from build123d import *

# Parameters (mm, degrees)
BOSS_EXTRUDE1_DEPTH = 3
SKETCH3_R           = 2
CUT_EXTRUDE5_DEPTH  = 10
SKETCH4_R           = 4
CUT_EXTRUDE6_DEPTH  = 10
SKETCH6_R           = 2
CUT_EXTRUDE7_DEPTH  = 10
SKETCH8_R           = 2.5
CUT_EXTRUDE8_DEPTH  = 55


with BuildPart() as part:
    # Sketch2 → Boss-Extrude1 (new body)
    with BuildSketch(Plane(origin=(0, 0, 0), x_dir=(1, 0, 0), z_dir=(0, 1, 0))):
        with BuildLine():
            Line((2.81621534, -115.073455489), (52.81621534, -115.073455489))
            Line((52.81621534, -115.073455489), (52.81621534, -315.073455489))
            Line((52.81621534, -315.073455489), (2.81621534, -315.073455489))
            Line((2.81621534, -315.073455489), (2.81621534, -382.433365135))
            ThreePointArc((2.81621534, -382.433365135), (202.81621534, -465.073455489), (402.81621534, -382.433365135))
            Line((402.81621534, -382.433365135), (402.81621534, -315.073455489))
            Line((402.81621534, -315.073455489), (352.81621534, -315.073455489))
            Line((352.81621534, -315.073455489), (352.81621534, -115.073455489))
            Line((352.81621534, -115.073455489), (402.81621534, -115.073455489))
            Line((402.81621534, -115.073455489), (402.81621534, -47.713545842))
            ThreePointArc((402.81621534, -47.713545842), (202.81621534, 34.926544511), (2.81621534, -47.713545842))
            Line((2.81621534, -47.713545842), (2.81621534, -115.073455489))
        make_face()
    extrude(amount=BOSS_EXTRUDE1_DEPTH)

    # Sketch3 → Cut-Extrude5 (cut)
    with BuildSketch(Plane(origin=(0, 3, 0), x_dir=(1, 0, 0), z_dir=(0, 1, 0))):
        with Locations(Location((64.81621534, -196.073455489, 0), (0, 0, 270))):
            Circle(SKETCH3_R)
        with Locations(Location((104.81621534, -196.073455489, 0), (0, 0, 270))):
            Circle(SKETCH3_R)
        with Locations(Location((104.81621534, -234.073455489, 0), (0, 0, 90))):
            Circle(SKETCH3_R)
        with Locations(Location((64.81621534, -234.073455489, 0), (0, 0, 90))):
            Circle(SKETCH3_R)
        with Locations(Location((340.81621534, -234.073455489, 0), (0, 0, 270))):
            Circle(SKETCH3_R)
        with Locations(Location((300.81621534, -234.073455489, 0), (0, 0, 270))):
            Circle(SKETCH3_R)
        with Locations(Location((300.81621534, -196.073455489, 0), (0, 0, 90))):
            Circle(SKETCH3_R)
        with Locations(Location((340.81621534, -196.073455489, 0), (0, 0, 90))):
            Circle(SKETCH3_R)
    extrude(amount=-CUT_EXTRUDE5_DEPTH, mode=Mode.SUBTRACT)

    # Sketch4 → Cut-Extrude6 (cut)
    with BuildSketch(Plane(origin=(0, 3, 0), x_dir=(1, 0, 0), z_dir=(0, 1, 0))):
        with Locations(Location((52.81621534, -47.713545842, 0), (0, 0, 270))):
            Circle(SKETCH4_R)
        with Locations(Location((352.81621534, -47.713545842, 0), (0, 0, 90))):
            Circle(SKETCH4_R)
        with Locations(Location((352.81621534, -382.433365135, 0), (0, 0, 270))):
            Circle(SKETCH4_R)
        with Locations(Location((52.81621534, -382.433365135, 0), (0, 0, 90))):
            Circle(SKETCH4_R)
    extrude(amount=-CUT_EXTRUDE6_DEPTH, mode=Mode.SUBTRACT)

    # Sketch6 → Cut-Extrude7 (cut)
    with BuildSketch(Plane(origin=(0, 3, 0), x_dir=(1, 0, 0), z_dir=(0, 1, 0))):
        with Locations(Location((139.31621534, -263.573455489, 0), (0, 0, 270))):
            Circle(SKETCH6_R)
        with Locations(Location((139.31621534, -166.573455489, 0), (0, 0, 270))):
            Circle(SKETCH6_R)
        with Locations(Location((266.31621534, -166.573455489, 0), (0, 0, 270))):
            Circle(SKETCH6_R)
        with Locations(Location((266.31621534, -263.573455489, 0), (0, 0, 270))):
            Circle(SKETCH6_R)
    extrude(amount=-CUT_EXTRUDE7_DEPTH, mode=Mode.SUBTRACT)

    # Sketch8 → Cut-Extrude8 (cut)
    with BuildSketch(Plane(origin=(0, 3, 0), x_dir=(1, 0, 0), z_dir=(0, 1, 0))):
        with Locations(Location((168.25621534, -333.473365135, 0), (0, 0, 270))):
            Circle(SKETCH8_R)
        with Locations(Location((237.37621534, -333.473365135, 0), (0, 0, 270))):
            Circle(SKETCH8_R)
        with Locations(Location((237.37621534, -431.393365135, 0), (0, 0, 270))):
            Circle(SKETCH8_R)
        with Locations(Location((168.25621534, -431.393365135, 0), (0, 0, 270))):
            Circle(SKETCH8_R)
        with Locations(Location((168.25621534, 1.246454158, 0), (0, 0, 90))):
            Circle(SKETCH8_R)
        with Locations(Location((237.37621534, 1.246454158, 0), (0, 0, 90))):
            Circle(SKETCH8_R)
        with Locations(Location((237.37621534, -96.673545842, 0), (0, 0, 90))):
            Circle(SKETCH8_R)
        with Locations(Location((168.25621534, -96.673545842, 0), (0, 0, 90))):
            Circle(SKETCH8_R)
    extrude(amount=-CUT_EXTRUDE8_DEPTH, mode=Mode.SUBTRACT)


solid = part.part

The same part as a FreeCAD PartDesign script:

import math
import FreeCAD as App
import Part
import Sketcher
Q = App.Units.Quantity

doc = App.newDocument("Part")
body = doc.addObject("PartDesign::Body", "Body")

# Sketch on XZ plane
sketch1 = doc.addObject("Sketcher::SketchObject", "Sketch")
body.addObject(sketch1)
sketch1.AttachmentSupport = (doc.XZ_Plane, [""])
sketch1.MapMode = "FlatFace"
sketch1.addGeometry([
    Part.LineSegment(App.Vector(3, 115, 0), App.Vector(53, 115, 0)),  # 0
    Part.LineSegment(App.Vector(53, 115, 0), App.Vector(53, 315, 0)),  # 1
    Part.LineSegment(App.Vector(53, 315, 0), App.Vector(3, 315, 0)),  # 2
    Part.LineSegment(App.Vector(3, 315, 0), App.Vector(3, 382, 0)),  # 3
    Part.ArcOfCircle(Part.Circle(App.Vector(203, 182, 0), App.Vector(0, 0, 1), 283), math.radians(45), math.radians(135)),  # 4
    Part.LineSegment(App.Vector(403, 382, 0), App.Vector(403, 315, 0)),  # 5
    Part.LineSegment(App.Vector(403, 315, 0), App.Vector(353, 315, 0)),  # 6
    Part.LineSegment(App.Vector(353, 315, 0), App.Vector(353, 115, 0)),  # 7
    Part.LineSegment(App.Vector(353, 115, 0), App.Vector(403, 115, 0)),  # 8
    Part.LineSegment(App.Vector(403, 115, 0), App.Vector(403, 48, 0)),  # 9
    Part.ArcOfCircle(Part.Circle(App.Vector(203, 248, 0), App.Vector(0, 0, 1), 283), math.radians(-135), math.radians(-45)),  # 10
    Part.LineSegment(App.Vector(3, 48, 0), App.Vector(3, 115, 0)),  # 11
], False)
sketch1.addConstraint([
    Sketcher.Constraint("Coincident", 0, 2, 1, 1),
    Sketcher.Constraint("Coincident", 1, 2, 2, 1),
    Sketcher.Constraint("Coincident", 2, 2, 3, 1),
    Sketcher.Constraint("Coincident", 3, 2, 4, 2),
    Sketcher.Constraint("Coincident", 4, 1, 5, 1),
    Sketcher.Constraint("Coincident", 5, 2, 6, 1),
    Sketcher.Constraint("Coincident", 6, 2, 7, 1),
    Sketcher.Constraint("Coincident", 7, 2, 8, 1),
    Sketcher.Constraint("Coincident", 8, 2, 9, 1),
    Sketcher.Constraint("Coincident", 9, 2, 10, 2),
    Sketcher.Constraint("Coincident", 10, 1, 11, 1),
    Sketcher.Constraint("Coincident", 11, 2, 0, 1),
    Sketcher.Constraint("Horizontal", 0),
    Sketcher.Constraint("Vertical", 1),
    Sketcher.Constraint("Horizontal", 2),
    Sketcher.Constraint("Vertical", 3),
    Sketcher.Constraint("Vertical", 5),
    Sketcher.Constraint("Horizontal", 6),
    Sketcher.Constraint("Vertical", 7),
    Sketcher.Constraint("Horizontal", 8),
    Sketcher.Constraint("Vertical", 9),
    Sketcher.Constraint("Vertical", 11),
    Sketcher.Constraint("Equal", 4, 10),
    Sketcher.Constraint("Horizontal", 3, 2, 4, 1),
    Sketcher.Constraint("Horizontal", 2, 2, 5, 2),
    Sketcher.Constraint("Horizontal", 0, 2, 7, 2),
    Sketcher.Constraint("Horizontal", 9, 2, 10, 1),
    Sketcher.Constraint("Vertical", 4, 3, 10, 3),
    Sketcher.Constraint("Vertical", 5, 2, 8, 2),
    Sketcher.Constraint("Equal", 2, 6),
    Sketcher.Constraint("Equal", 5, 9),
    Sketcher.Constraint("DistanceX", 0, 1, 0, 2, Q("50 mm")),
    Sketcher.Constraint("DistanceY", 1, 1, 1, 2, Q("200 mm")),
    Sketcher.Constraint("DistanceX", 0, 2, 4, 3, Q("150 mm")),
    Sketcher.Constraint("Radius", 4, Q("283.333333 mm")),
    Sketcher.Constraint("DistanceY", 3, 1, 3, 2, Q("67.35991 mm")),
    Sketcher.Constraint("DistanceY", -1, 1, 10, 3, Q("248.406789 mm")),
    Sketcher.Constraint("DistanceX", -1, 1, 4, 3, Q("202.816215 mm")),
])
pad1 = doc.addObject("PartDesign::Pad", "Pad")
body.addObject(pad1)
pad1.Profile = sketch1
pad1.Length = 3
pad1.Reversed = True

# Sketch on XZ plane
sketch2 = doc.addObject("Sketcher::SketchObject", "Sketch001")
body.addObject(sketch2)
sketch2.AttachmentSupport = (doc.XZ_Plane, [""])
sketch2.MapMode = "FlatFace"
sketch2.AttachmentOffset = App.Placement(App.Vector(0, 0, -3), App.Rotation())
sketch2.addGeometry([
    Part.Circle(App.Vector(64.8, 196.1, 0), App.Vector(0, 0, 1), 2),  # 0
    Part.Circle(App.Vector(104.8, 196.1, 0), App.Vector(0, 0, 1), 2),  # 1
    Part.Circle(App.Vector(104.8, 234.1, 0), App.Vector(0, 0, 1), 2),  # 2
    Part.Circle(App.Vector(64.8, 234.1, 0), App.Vector(0, 0, 1), 2),  # 3
    Part.Circle(App.Vector(340.8, 234.1, 0), App.Vector(0, 0, 1), 2),  # 4
    Part.Circle(App.Vector(300.8, 234.1, 0), App.Vector(0, 0, 1), 2),  # 5
    Part.Circle(App.Vector(300.8, 196.1, 0), App.Vector(0, 0, 1), 2),  # 6
    Part.Circle(App.Vector(340.8, 196.1, 0), App.Vector(0, 0, 1), 2),  # 7
], False)
sketch2.addConstraint([
    Sketcher.Constraint("Equal", 0, 1),
    Sketcher.Constraint("Equal", 1, 2),
    Sketcher.Constraint("Equal", 2, 3),
    Sketcher.Constraint("Equal", 3, 4),
    Sketcher.Constraint("Equal", 4, 5),
    Sketcher.Constraint("Equal", 5, 6),
    Sketcher.Constraint("Equal", 6, 7),
    Sketcher.Constraint("Horizontal", 0, 3, 1, 3),
    Sketcher.Constraint("Horizontal", 2, 3, 3, 3),
    Sketcher.Constraint("Horizontal", 3, 3, 4, 3),
    Sketcher.Constraint("Horizontal", 4, 3, 5, 3),
    Sketcher.Constraint("Horizontal", 1, 3, 6, 3),
    Sketcher.Constraint("Horizontal", 6, 3, 7, 3),
    Sketcher.Constraint("Vertical", 1, 3, 2, 3),
    Sketcher.Constraint("Vertical", 0, 3, 3, 3),
    Sketcher.Constraint("Vertical", 5, 3, 6, 3),
    Sketcher.Constraint("Vertical", 4, 3, 7, 3),
    Sketcher.Constraint("Diameter", 0, Q("4 mm")),
    Sketcher.Constraint("DistanceX", 0, 3, 1, 3, Q("40 mm")),
    Sketcher.Constraint("DistanceY", 1, 3, 2, 3, Q("38 mm")),
    Sketcher.Constraint("DistanceX", 2, 3, 4, 3, Q("236 mm")),
    Sketcher.Constraint("DistanceX", 5, 3, 4, 3, Q("40 mm")),
    Sketcher.Constraint("DistanceX", -1, 1, 0, 3, Q("64.816215 mm")),
    Sketcher.Constraint("DistanceY", -1, 1, 0, 3, Q("196.073455 mm")),
])
pocket1 = doc.addObject("PartDesign::Pocket", "Pocket")
body.addObject(pocket1)
pocket1.Profile = sketch2
pocket1.Length = 10
pocket1.Reversed = True

# Sketch on XZ plane
sketch3 = doc.addObject("Sketcher::SketchObject", "Sketch002")
body.addObject(sketch3)
sketch3.AttachmentSupport = (doc.XZ_Plane, [""])
sketch3.MapMode = "FlatFace"
sketch3.AttachmentOffset = App.Placement(App.Vector(0, 0, -3), App.Rotation())
sketch3.addGeometry([
    Part.Circle(App.Vector(52.8, 47.7, 0), App.Vector(0, 0, 1), 4),
    Part.Circle(App.Vector(352.8, 47.7, 0), App.Vector(0, 0, 1), 4),
    Part.Circle(App.Vector(352.8, 382.4, 0), App.Vector(0, 0, 1), 4),
    Part.Circle(App.Vector(52.8, 382.4, 0), App.Vector(0, 0, 1), 4),
], False)
sketch3.addConstraint([
    Sketcher.Constraint("Equal", 0, 1),
    Sketcher.Constraint("Equal", 1, 2),
    Sketcher.Constraint("Equal", 2, 3),
    Sketcher.Constraint("Horizontal", 0, 3, 1, 3),
    Sketcher.Constraint("Horizontal", 2, 3, 3, 3),
    Sketcher.Constraint("Vertical", 1, 3, 2, 3),
    Sketcher.Constraint("Vertical", 0, 3, 3, 3),
    Sketcher.Constraint("Diameter", 0, Q("8 mm")),
    Sketcher.Constraint("DistanceX", 0, 3, 1, 3, Q("300 mm")),
    Sketcher.Constraint("DistanceY", 1, 3, 2, 3, Q("334.719819 mm")),
    Sketcher.Constraint("DistanceX", -1, 1, 0, 3, Q("52.816215 mm")),
    Sketcher.Constraint("DistanceY", -1, 1, 0, 3, Q("47.713546 mm")),
])
pocket2 = doc.addObject("PartDesign::Pocket", "Pocket001")
body.addObject(pocket2)
pocket2.Profile = sketch3
pocket2.Length = 10
pocket2.Reversed = True

# Sketch on XZ plane
sketch4 = doc.addObject("Sketcher::SketchObject", "Sketch003")
body.addObject(sketch4)
sketch4.AttachmentSupport = (doc.XZ_Plane, [""])
sketch4.MapMode = "FlatFace"
sketch4.AttachmentOffset = App.Placement(App.Vector(0, 0, -3), App.Rotation())
sketch4.addGeometry([
    Part.Circle(App.Vector(139.3, 263.6, 0), App.Vector(0, 0, 1), 2),
    Part.Circle(App.Vector(139.3, 166.6, 0), App.Vector(0, 0, 1), 2),
    Part.Circle(App.Vector(266.3, 166.6, 0), App.Vector(0, 0, 1), 2),
    Part.Circle(App.Vector(266.3, 263.6, 0), App.Vector(0, 0, 1), 2),
], False)
sketch4.addConstraint([
    Sketcher.Constraint("Equal", 0, 1),
    Sketcher.Constraint("Equal", 1, 2),
    Sketcher.Constraint("Equal", 2, 3),
    Sketcher.Constraint("Horizontal", 1, 3, 2, 3),
    Sketcher.Constraint("Horizontal", 0, 3, 3, 3),
    Sketcher.Constraint("Vertical", 0, 3, 1, 3),
    Sketcher.Constraint("Vertical", 2, 3, 3, 3),
    Sketcher.Constraint("Diameter", 0, Q("4 mm")),
    Sketcher.Constraint("DistanceY", 1, 3, 0, 3, Q("97 mm")),
    Sketcher.Constraint("DistanceX", 1, 3, 2, 3, Q("127 mm")),
    Sketcher.Constraint("DistanceX", -1, 1, 0, 3, Q("139.316215 mm")),
    Sketcher.Constraint("DistanceY", -1, 1, 0, 3, Q("263.573455 mm")),
])
pocket3 = doc.addObject("PartDesign::Pocket", "Pocket002")
body.addObject(pocket3)
pocket3.Profile = sketch4
pocket3.Length = 10
pocket3.Reversed = True

# Sketch on XZ plane
sketch5 = doc.addObject("Sketcher::SketchObject", "Sketch004")
body.addObject(sketch5)
sketch5.AttachmentSupport = (doc.XZ_Plane, [""])
sketch5.MapMode = "FlatFace"
sketch5.AttachmentOffset = App.Placement(App.Vector(0, 0, -3), App.Rotation())
sketch5.addGeometry([
    Part.Circle(App.Vector(168.3, 333.5, 0), App.Vector(0, 0, 1), 2.5),  # 0
    Part.Circle(App.Vector(237.4, 333.5, 0), App.Vector(0, 0, 1), 2.5),  # 1
    Part.Circle(App.Vector(237.4, 431.4, 0), App.Vector(0, 0, 1), 2.5),  # 2
    Part.Circle(App.Vector(168.3, 431.4, 0), App.Vector(0, 0, 1), 2.5),  # 3
    Part.Circle(App.Vector(168.3, -1.2, 0), App.Vector(0, 0, 1), 2.5),  # 4
    Part.Circle(App.Vector(237.4, -1.2, 0), App.Vector(0, 0, 1), 2.5),  # 5
    Part.Circle(App.Vector(237.4, 96.7, 0), App.Vector(0, 0, 1), 2.5),  # 6
    Part.Circle(App.Vector(168.3, 96.7, 0), App.Vector(0, 0, 1), 2.5),  # 7
], False)
sketch5.addConstraint([
    Sketcher.Constraint("Equal", 0, 1),
    Sketcher.Constraint("Equal", 1, 2),
    Sketcher.Constraint("Equal", 2, 3),
    Sketcher.Constraint("Equal", 3, 4),
    Sketcher.Constraint("Equal", 4, 5),
    Sketcher.Constraint("Equal", 5, 6),
    Sketcher.Constraint("Equal", 6, 7),
    Sketcher.Constraint("Horizontal", 0, 3, 1, 3),
    Sketcher.Constraint("Horizontal", 2, 3, 3, 3),
    Sketcher.Constraint("Horizontal", 4, 3, 5, 3),
    Sketcher.Constraint("Horizontal", 6, 3, 7, 3),
    Sketcher.Constraint("Vertical", 1, 3, 2, 3),
    Sketcher.Constraint("Vertical", 0, 3, 3, 3),
    Sketcher.Constraint("Vertical", 3, 3, 4, 3),
    Sketcher.Constraint("Vertical", 2, 3, 5, 3),
    Sketcher.Constraint("Vertical", 5, 3, 6, 3),
    Sketcher.Constraint("Vertical", 4, 3, 7, 3),
    Sketcher.Constraint("Diameter", 0, Q("5 mm")),
    Sketcher.Constraint("DistanceX", 0, 3, 1, 3, Q("69.12 mm")),
    Sketcher.Constraint("DistanceY", 1, 3, 2, 3, Q("97.92 mm")),
    Sketcher.Constraint("DistanceY", 5, 3, 6, 3, Q("97.92 mm")),
    Sketcher.Constraint("DistanceY", 4, 3, 0, 3, Q("334.719819 mm")),
    Sketcher.Constraint("DistanceX", -1, 1, 0, 3, Q("168.256215 mm")),
    Sketcher.Constraint("DistanceY", -1, 1, 0, 3, Q("333.473365 mm")),
])
pocket4 = doc.addObject("PartDesign::Pocket", "Pocket003")
body.addObject(pocket4)
pocket4.Profile = sketch5
pocket4.Length = 55
pocket4.Reversed = True

doc.recompute()
